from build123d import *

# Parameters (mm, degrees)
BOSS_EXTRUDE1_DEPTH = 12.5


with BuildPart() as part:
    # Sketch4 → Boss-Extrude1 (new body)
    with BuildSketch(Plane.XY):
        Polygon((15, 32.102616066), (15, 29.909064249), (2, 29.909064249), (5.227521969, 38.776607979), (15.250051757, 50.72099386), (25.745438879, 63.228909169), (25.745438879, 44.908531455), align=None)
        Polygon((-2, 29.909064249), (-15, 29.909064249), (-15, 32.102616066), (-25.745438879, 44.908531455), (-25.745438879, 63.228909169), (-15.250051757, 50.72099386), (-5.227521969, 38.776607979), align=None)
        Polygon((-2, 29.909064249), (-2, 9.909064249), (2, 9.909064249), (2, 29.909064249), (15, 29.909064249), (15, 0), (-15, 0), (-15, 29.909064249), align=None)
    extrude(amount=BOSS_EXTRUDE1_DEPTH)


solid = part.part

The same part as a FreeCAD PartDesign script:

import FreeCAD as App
import Part
import Sketcher
Q = App.Units.Quantity


def add_polygon(sketch, points):
    """Adds a closed chain of lines whose ends are joined by coincident constraints."""
    first, n = sketch.GeometryCount, len(points)
    for a, b in zip(points, points[1:] + points[:1]):
        sketch.addGeometry(Part.LineSegment(App.Vector(*a, 0), App.Vector(*b, 0)), False)
    for i in range(n):
        sketch.addConstraint(Sketcher.Constraint("Coincident", first + i, 2, first + (i + 1) % n, 1))

doc = App.newDocument("Part")
params = doc.addObject("Spreadsheet::Sheet", "Params")
for row, (alias, value) in enumerate([
    ("sketch1_width", "4 mm"),
    ("sketch1_width2", "30 mm"),
    ("sketch1_height", "20 mm"),
    ("pad1_length", "12.5 mm"),
], start=1):
    params.set(f"A{row}", alias)
    params.set(f"B{row}", "=" + value)
    params.setAlias(f"B{row}", alias)

body = doc.addObject("PartDesign::Body", "Body")

# Sketch on XY plane
sketch1 = body.newObject("Sketcher::SketchObject", "Sketch")
sketch1.AttachmentSupport = (doc.getObject("XY_Plane"), [""])
sketch1.MapMode = "FlatFace"
add_polygon(sketch1, [(15, 0), (15, 32.1), (25.7, 44.9), (25.7, 63.2), (15.3, 50.7), (5.2, 38.8), (2, 29.9), (2, 9.9), (-2, 9.9), (-2, 29.9), (-5.2, 38.8), (-15.3, 50.7), (-25.7, 63.2), (-25.7, 44.9), (-15, 32.1), (-15, 0)])  # lines 0-15
sketch1.addConstraint([
    Sketcher.Constraint("Vertical", 0),
    Sketcher.Constraint("Vertical", 2),
    Sketcher.Constraint("Vertical", 6),
    Sketcher.Constraint("Horizontal", 7),
    Sketcher.Constraint("Vertical", 8),
    Sketcher.Constraint("Vertical", 12),
    Sketcher.Constraint("Vertical", 14),
    Sketcher.Constraint("Horizontal", 15),
    Sketcher.Constraint("Symmetric", 14, 2, 15, 2, -1, 1),
    Sketcher.Constraint("Symmetric", 5, 2, 8, 2, -2),
    Sketcher.Constraint("Symmetric", 4, 2, 9, 2, -2),
    Sketcher.Constraint("Symmetric", 3, 2, 10, 2, -2),
    Sketcher.Constraint("Symmetric", 2, 2, 11, 2, -2),
    Sketcher.Constraint("Parallel", 1, 3),
    Sketcher.Constraint("Parallel", 3, 4),
    Sketcher.Constraint("Parallel", 11, 13),
    Sketcher.Constraint("Horizontal", 1, 2, 12, 2),
    Sketcher.Constraint("DistanceX", 7, 2, 7, 1, 4.0),
    Sketcher.Constraint("DistanceX", 15, 1, 15, 2, 30.0),
    Sketcher.Constraint("DistanceY", 6, 2, 6, 1, 20.0),
    Sketcher.Constraint("Angle", 1, Q("50 deg")),
    Sketcher.Constraint("Angle", 5, Q("-110 deg")),
    Sketcher.Constraint("DistanceY", 4, 2, 2, 2, 24.452301),
    Sketcher.Constraint("Distance", 4, 15.592288),
    Sketcher.Constraint("DistanceY", 0, 1, 0, 2, 32.102616),
    Sketcher.Constraint("DistanceY", 2, 1, 2, 2, 18.320378),
    Sketcher.Constraint("DistanceX", -1, 1, 1, 2, 25.745439),
])
sketch1.setExpression("Constraints[33]", "Params.sketch1_width")
sketch1.setExpression("Constraints[34]", "Params.sketch1_width2")
sketch1.setExpression("Constraints[35]", "Params.sketch1_height")
pad1 = body.newObject("PartDesign::Pad", "Pad")
pad1.Profile = sketch1
pad1.setExpression("Length", "Params.pad1_length")

doc.recompute()
